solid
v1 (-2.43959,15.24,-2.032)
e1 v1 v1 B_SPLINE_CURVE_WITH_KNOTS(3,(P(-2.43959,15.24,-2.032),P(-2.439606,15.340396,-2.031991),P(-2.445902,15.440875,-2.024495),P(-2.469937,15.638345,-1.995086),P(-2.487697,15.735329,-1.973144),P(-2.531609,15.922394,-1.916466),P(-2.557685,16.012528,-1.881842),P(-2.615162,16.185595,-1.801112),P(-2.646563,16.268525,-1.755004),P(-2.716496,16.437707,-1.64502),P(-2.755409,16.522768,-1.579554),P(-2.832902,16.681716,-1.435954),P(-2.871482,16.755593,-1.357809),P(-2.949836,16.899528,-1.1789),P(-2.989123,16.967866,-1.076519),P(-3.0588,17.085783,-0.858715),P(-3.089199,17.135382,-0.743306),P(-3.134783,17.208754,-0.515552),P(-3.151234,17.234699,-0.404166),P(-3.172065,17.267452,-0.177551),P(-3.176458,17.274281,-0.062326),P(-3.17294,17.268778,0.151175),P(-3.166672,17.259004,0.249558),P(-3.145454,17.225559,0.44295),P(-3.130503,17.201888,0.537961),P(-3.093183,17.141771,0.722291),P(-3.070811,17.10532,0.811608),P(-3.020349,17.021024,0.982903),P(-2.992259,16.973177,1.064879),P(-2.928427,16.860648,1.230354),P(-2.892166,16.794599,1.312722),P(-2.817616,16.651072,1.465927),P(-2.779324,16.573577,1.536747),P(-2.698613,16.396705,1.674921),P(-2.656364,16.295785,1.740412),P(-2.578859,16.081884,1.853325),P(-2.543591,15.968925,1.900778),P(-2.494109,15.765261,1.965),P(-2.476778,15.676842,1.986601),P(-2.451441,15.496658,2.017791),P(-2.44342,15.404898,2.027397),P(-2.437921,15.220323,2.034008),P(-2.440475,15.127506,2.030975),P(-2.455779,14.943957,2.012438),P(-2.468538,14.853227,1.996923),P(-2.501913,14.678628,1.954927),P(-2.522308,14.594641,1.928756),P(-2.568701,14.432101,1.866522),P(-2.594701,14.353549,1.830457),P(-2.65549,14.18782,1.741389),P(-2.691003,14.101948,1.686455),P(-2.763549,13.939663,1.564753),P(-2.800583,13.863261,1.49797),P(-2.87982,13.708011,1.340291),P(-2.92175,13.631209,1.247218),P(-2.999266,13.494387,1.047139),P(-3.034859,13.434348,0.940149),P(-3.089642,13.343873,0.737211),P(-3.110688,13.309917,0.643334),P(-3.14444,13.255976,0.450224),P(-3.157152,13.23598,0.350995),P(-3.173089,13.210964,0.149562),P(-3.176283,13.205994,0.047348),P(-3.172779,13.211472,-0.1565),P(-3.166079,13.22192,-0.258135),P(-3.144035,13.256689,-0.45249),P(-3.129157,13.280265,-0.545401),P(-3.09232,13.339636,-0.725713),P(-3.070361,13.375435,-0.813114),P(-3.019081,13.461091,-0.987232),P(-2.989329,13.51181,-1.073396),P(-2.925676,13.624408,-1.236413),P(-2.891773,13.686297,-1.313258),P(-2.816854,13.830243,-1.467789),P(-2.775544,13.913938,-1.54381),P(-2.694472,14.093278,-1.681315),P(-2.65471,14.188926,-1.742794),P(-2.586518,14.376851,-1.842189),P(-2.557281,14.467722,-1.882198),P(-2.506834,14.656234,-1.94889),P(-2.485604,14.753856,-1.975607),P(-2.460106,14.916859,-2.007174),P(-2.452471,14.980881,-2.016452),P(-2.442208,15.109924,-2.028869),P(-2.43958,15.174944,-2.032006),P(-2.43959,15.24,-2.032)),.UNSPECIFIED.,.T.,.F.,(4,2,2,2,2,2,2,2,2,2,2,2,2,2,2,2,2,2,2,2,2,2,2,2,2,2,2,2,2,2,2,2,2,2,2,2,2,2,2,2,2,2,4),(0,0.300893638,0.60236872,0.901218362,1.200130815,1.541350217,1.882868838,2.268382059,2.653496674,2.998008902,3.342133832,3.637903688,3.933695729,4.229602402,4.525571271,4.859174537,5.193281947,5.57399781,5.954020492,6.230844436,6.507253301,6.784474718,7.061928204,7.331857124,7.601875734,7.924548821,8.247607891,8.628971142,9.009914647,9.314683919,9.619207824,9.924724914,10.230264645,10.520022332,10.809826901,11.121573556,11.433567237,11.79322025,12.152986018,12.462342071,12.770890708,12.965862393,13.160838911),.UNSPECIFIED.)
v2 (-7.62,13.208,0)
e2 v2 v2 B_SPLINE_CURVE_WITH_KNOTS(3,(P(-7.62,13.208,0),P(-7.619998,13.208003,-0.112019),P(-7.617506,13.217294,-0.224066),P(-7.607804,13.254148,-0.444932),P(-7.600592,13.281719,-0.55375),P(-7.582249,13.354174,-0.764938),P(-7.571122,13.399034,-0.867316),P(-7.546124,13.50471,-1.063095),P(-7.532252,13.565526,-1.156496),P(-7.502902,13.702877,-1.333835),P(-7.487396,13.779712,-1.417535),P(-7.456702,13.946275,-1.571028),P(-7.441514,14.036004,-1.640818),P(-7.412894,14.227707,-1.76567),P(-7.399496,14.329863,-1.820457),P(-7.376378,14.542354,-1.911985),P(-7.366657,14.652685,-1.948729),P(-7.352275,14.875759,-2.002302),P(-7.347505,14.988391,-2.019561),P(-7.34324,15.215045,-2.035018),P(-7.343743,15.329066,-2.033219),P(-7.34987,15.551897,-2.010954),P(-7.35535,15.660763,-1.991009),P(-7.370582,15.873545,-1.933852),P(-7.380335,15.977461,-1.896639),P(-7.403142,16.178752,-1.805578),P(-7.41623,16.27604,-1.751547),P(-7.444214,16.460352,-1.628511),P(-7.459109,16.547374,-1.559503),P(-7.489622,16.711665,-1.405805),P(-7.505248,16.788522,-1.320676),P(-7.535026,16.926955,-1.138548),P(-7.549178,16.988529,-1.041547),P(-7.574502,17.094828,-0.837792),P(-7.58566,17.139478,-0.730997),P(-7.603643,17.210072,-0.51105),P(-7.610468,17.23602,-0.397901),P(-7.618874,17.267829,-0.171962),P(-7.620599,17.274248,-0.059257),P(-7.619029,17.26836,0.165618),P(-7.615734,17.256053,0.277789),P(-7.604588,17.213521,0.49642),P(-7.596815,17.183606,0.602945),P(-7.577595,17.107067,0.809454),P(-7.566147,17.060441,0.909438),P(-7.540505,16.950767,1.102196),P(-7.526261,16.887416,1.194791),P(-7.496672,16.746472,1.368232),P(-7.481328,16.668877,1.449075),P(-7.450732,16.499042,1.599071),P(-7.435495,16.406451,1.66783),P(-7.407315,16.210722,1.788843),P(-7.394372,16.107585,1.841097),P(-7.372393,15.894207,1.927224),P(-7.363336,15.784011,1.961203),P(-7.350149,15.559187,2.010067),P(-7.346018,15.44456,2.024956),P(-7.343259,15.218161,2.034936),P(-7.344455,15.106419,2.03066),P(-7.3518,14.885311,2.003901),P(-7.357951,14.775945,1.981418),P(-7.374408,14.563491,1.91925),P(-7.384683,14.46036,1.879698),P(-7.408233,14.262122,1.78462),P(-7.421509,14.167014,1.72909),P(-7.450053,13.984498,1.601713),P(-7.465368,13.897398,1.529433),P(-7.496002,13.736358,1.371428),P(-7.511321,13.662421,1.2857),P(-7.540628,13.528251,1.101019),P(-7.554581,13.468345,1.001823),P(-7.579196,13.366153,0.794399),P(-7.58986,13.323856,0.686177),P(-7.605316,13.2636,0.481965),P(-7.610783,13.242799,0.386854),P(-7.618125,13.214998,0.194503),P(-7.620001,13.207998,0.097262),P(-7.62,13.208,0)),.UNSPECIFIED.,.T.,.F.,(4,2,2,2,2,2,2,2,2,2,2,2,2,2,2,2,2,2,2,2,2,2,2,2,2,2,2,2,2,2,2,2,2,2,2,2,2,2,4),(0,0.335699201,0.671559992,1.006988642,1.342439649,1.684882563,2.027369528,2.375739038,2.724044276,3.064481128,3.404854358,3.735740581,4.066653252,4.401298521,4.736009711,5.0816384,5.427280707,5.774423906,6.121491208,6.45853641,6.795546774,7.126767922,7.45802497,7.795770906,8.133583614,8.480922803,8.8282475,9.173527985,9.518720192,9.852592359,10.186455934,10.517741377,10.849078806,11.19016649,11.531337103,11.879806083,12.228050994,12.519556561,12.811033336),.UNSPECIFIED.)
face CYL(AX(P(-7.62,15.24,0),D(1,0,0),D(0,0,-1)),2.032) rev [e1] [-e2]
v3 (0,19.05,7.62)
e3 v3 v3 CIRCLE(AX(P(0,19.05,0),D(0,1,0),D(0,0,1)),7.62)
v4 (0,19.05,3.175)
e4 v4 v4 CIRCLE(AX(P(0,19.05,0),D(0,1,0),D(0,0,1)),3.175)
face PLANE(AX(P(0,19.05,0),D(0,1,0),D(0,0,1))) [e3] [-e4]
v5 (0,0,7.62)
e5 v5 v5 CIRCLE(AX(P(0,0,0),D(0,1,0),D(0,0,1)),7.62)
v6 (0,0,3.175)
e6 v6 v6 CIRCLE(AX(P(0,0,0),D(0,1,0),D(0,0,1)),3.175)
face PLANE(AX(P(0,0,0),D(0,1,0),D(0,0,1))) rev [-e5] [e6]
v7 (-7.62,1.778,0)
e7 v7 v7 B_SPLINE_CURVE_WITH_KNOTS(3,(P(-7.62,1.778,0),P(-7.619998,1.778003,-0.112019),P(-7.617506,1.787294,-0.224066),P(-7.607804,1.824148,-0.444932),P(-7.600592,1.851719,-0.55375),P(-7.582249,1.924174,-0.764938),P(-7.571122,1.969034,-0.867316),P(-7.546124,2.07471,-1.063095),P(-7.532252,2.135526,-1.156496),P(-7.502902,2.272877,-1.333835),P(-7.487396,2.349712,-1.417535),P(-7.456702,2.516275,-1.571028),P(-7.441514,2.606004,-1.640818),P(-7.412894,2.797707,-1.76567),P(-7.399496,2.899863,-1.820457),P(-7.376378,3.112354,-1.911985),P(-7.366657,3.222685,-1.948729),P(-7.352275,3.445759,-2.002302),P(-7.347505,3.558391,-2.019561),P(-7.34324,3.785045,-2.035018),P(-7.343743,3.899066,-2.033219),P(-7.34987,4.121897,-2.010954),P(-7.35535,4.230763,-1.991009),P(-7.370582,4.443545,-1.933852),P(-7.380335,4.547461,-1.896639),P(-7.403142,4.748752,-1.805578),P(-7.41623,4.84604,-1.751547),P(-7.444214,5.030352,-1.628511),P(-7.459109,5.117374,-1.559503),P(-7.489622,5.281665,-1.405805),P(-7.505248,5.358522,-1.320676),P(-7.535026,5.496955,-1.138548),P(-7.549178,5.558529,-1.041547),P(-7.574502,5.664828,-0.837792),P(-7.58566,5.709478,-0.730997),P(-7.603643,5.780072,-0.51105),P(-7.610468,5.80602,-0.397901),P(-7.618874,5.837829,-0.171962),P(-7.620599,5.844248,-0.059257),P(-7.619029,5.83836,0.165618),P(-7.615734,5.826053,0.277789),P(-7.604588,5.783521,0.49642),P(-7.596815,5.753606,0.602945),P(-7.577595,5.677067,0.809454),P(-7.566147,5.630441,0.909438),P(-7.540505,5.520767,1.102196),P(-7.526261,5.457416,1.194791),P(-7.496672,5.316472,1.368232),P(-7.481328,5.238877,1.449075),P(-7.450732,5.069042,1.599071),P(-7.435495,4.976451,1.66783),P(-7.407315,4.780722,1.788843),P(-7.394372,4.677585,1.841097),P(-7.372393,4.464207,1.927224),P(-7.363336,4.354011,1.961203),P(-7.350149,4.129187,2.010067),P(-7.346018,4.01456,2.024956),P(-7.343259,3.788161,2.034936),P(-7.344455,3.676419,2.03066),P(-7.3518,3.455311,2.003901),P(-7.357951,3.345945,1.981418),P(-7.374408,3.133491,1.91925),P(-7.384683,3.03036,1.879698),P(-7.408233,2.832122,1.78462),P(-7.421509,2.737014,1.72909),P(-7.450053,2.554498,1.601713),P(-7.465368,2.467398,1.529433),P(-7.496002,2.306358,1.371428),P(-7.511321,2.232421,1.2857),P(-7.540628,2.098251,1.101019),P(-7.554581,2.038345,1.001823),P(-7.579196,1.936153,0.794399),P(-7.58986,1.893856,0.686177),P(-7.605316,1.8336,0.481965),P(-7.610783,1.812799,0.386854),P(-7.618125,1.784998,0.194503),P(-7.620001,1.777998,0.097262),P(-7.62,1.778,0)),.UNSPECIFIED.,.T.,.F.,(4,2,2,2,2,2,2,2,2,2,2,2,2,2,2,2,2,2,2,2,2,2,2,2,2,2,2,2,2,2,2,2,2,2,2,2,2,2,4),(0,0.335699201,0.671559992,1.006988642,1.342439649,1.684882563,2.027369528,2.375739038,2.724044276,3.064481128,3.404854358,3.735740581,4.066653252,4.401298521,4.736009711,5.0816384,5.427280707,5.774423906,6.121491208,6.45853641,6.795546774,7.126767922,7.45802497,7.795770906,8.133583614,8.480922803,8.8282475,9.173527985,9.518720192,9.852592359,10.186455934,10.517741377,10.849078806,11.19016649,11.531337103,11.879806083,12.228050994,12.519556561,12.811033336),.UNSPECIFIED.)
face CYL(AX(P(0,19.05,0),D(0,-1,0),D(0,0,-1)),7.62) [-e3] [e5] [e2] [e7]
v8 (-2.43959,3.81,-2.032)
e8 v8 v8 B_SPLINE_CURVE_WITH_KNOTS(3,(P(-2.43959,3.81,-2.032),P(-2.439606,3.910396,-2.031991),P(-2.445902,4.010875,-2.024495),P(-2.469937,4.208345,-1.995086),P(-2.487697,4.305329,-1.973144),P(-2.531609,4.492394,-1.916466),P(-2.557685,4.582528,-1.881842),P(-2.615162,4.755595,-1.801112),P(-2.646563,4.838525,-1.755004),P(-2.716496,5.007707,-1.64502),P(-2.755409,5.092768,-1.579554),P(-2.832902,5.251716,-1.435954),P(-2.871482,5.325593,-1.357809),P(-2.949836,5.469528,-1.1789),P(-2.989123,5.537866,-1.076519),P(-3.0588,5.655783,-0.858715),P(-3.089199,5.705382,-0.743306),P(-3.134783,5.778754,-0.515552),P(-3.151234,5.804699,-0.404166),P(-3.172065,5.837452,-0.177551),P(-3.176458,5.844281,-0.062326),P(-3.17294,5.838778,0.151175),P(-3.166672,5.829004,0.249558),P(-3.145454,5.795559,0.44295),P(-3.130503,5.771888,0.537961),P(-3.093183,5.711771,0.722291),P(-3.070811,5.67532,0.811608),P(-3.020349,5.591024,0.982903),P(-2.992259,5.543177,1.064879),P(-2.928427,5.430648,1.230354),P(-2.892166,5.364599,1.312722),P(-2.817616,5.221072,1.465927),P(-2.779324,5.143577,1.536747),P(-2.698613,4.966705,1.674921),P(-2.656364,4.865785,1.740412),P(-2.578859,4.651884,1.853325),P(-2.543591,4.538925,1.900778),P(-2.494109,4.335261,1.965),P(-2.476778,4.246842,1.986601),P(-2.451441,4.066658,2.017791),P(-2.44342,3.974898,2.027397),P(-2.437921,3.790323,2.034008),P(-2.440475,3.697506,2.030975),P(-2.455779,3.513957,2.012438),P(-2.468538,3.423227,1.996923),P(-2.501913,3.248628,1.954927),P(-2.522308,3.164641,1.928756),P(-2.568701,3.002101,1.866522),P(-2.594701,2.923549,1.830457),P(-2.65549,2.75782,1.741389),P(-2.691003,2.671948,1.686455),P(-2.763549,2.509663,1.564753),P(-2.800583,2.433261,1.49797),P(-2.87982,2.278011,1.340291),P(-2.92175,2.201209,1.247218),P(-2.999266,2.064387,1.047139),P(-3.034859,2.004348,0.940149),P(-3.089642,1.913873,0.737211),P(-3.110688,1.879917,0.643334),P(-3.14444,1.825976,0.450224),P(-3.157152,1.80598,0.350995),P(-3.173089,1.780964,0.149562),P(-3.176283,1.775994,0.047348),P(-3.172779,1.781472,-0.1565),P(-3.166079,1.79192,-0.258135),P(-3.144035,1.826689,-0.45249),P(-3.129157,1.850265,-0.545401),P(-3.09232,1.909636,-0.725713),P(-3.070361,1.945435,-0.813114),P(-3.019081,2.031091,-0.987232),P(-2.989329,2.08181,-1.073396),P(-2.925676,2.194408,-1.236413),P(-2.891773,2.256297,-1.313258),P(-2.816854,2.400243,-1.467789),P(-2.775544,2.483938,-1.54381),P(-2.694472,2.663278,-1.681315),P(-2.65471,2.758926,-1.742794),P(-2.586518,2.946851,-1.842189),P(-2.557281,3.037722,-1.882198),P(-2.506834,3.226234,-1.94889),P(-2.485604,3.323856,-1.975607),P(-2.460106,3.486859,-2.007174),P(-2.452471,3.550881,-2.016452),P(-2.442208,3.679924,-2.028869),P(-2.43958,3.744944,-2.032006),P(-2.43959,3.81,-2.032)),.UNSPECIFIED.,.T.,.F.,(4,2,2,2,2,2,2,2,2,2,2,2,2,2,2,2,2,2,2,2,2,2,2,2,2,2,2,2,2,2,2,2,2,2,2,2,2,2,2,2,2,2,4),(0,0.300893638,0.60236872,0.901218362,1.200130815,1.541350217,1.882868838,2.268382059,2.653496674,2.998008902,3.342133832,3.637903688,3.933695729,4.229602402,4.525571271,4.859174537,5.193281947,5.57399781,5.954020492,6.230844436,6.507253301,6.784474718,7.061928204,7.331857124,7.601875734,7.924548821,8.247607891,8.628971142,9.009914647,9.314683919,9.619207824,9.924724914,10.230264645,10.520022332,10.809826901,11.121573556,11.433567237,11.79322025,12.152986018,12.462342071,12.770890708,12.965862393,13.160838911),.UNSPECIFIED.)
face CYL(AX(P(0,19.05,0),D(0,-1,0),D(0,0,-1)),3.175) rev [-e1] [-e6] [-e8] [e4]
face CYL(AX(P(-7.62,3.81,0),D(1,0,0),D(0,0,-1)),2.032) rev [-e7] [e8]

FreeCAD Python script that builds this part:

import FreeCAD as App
import Part
import Sketcher
Q = App.Units.Quantity

doc = App.newDocument("Part")
body = doc.addObject("PartDesign::Body", "Body")

sketch1 = body.newObject("Sketcher::SketchObject", "Sketch")
sketch1.AttachmentSupport = (doc.getObject("XZ_Plane"), [""])
sketch1.MapMode = "FlatFace"
sketch1.addGeometry([
    Part.Circle(App.Vector(0, 0, 0), App.Vector(0, 0, 1), 7.6),
    Part.Circle(App.Vector(0, 0, 0), App.Vector(0, 0, 1), 3.2),
], False)
sketch1.addConstraint([
    Sketcher.Constraint("Coincident", 0, 3, -1, 1),
    Sketcher.Constraint("Coincident", 1, 3, -1, 1),
    Sketcher.Constraint("Diameter", 0, Q("0.6 in")),
    Sketcher.Constraint("Diameter", 1, Q("0.25 in")),
])
pad1 = body.newObject("PartDesign::Pad", "Pad")
pad1.Profile = sketch1
pad1.Length = Q("0.75 in")
pad1.Reversed = True

sketch2 = body.newObject("Sketcher::SketchObject", "Sketch001")
sketch2.AttachmentSupport = (doc.getObject("YZ_Plane"), [""])
sketch2.MapMode = "FlatFace"
sketch2.addGeometry([
    Part.Circle(App.Vector(3.8, 0, 0), App.Vector(0, 0, 1), 2),
    Part.Circle(App.Vector(15.2, 0, 0), App.Vector(0, 0, 1), 2),
], False)
sketch2.addConstraint([
    Sketcher.Constraint("Equal", 0, 1),
    Sketcher.Constraint("PointOnObject", 0, 3, -1),
    Sketcher.Constraint("PointOnObject", 1, 3, -1),
    Sketcher.Constraint("Diameter", 0, Q("0.16 in")),
    Sketcher.Constraint("DistanceX", -1, 1, 1, 3, Q("0.6 in")),
    Sketcher.Constraint("DistanceX", -1, 1, 0, 3, Q("0.15 in")),
])
pocket1 = body.newObject("PartDesign::Pocket", "Pocket")
pocket1.Profile = sketch2
pocket1.Type = "ThroughAll"

doc.recompute()
